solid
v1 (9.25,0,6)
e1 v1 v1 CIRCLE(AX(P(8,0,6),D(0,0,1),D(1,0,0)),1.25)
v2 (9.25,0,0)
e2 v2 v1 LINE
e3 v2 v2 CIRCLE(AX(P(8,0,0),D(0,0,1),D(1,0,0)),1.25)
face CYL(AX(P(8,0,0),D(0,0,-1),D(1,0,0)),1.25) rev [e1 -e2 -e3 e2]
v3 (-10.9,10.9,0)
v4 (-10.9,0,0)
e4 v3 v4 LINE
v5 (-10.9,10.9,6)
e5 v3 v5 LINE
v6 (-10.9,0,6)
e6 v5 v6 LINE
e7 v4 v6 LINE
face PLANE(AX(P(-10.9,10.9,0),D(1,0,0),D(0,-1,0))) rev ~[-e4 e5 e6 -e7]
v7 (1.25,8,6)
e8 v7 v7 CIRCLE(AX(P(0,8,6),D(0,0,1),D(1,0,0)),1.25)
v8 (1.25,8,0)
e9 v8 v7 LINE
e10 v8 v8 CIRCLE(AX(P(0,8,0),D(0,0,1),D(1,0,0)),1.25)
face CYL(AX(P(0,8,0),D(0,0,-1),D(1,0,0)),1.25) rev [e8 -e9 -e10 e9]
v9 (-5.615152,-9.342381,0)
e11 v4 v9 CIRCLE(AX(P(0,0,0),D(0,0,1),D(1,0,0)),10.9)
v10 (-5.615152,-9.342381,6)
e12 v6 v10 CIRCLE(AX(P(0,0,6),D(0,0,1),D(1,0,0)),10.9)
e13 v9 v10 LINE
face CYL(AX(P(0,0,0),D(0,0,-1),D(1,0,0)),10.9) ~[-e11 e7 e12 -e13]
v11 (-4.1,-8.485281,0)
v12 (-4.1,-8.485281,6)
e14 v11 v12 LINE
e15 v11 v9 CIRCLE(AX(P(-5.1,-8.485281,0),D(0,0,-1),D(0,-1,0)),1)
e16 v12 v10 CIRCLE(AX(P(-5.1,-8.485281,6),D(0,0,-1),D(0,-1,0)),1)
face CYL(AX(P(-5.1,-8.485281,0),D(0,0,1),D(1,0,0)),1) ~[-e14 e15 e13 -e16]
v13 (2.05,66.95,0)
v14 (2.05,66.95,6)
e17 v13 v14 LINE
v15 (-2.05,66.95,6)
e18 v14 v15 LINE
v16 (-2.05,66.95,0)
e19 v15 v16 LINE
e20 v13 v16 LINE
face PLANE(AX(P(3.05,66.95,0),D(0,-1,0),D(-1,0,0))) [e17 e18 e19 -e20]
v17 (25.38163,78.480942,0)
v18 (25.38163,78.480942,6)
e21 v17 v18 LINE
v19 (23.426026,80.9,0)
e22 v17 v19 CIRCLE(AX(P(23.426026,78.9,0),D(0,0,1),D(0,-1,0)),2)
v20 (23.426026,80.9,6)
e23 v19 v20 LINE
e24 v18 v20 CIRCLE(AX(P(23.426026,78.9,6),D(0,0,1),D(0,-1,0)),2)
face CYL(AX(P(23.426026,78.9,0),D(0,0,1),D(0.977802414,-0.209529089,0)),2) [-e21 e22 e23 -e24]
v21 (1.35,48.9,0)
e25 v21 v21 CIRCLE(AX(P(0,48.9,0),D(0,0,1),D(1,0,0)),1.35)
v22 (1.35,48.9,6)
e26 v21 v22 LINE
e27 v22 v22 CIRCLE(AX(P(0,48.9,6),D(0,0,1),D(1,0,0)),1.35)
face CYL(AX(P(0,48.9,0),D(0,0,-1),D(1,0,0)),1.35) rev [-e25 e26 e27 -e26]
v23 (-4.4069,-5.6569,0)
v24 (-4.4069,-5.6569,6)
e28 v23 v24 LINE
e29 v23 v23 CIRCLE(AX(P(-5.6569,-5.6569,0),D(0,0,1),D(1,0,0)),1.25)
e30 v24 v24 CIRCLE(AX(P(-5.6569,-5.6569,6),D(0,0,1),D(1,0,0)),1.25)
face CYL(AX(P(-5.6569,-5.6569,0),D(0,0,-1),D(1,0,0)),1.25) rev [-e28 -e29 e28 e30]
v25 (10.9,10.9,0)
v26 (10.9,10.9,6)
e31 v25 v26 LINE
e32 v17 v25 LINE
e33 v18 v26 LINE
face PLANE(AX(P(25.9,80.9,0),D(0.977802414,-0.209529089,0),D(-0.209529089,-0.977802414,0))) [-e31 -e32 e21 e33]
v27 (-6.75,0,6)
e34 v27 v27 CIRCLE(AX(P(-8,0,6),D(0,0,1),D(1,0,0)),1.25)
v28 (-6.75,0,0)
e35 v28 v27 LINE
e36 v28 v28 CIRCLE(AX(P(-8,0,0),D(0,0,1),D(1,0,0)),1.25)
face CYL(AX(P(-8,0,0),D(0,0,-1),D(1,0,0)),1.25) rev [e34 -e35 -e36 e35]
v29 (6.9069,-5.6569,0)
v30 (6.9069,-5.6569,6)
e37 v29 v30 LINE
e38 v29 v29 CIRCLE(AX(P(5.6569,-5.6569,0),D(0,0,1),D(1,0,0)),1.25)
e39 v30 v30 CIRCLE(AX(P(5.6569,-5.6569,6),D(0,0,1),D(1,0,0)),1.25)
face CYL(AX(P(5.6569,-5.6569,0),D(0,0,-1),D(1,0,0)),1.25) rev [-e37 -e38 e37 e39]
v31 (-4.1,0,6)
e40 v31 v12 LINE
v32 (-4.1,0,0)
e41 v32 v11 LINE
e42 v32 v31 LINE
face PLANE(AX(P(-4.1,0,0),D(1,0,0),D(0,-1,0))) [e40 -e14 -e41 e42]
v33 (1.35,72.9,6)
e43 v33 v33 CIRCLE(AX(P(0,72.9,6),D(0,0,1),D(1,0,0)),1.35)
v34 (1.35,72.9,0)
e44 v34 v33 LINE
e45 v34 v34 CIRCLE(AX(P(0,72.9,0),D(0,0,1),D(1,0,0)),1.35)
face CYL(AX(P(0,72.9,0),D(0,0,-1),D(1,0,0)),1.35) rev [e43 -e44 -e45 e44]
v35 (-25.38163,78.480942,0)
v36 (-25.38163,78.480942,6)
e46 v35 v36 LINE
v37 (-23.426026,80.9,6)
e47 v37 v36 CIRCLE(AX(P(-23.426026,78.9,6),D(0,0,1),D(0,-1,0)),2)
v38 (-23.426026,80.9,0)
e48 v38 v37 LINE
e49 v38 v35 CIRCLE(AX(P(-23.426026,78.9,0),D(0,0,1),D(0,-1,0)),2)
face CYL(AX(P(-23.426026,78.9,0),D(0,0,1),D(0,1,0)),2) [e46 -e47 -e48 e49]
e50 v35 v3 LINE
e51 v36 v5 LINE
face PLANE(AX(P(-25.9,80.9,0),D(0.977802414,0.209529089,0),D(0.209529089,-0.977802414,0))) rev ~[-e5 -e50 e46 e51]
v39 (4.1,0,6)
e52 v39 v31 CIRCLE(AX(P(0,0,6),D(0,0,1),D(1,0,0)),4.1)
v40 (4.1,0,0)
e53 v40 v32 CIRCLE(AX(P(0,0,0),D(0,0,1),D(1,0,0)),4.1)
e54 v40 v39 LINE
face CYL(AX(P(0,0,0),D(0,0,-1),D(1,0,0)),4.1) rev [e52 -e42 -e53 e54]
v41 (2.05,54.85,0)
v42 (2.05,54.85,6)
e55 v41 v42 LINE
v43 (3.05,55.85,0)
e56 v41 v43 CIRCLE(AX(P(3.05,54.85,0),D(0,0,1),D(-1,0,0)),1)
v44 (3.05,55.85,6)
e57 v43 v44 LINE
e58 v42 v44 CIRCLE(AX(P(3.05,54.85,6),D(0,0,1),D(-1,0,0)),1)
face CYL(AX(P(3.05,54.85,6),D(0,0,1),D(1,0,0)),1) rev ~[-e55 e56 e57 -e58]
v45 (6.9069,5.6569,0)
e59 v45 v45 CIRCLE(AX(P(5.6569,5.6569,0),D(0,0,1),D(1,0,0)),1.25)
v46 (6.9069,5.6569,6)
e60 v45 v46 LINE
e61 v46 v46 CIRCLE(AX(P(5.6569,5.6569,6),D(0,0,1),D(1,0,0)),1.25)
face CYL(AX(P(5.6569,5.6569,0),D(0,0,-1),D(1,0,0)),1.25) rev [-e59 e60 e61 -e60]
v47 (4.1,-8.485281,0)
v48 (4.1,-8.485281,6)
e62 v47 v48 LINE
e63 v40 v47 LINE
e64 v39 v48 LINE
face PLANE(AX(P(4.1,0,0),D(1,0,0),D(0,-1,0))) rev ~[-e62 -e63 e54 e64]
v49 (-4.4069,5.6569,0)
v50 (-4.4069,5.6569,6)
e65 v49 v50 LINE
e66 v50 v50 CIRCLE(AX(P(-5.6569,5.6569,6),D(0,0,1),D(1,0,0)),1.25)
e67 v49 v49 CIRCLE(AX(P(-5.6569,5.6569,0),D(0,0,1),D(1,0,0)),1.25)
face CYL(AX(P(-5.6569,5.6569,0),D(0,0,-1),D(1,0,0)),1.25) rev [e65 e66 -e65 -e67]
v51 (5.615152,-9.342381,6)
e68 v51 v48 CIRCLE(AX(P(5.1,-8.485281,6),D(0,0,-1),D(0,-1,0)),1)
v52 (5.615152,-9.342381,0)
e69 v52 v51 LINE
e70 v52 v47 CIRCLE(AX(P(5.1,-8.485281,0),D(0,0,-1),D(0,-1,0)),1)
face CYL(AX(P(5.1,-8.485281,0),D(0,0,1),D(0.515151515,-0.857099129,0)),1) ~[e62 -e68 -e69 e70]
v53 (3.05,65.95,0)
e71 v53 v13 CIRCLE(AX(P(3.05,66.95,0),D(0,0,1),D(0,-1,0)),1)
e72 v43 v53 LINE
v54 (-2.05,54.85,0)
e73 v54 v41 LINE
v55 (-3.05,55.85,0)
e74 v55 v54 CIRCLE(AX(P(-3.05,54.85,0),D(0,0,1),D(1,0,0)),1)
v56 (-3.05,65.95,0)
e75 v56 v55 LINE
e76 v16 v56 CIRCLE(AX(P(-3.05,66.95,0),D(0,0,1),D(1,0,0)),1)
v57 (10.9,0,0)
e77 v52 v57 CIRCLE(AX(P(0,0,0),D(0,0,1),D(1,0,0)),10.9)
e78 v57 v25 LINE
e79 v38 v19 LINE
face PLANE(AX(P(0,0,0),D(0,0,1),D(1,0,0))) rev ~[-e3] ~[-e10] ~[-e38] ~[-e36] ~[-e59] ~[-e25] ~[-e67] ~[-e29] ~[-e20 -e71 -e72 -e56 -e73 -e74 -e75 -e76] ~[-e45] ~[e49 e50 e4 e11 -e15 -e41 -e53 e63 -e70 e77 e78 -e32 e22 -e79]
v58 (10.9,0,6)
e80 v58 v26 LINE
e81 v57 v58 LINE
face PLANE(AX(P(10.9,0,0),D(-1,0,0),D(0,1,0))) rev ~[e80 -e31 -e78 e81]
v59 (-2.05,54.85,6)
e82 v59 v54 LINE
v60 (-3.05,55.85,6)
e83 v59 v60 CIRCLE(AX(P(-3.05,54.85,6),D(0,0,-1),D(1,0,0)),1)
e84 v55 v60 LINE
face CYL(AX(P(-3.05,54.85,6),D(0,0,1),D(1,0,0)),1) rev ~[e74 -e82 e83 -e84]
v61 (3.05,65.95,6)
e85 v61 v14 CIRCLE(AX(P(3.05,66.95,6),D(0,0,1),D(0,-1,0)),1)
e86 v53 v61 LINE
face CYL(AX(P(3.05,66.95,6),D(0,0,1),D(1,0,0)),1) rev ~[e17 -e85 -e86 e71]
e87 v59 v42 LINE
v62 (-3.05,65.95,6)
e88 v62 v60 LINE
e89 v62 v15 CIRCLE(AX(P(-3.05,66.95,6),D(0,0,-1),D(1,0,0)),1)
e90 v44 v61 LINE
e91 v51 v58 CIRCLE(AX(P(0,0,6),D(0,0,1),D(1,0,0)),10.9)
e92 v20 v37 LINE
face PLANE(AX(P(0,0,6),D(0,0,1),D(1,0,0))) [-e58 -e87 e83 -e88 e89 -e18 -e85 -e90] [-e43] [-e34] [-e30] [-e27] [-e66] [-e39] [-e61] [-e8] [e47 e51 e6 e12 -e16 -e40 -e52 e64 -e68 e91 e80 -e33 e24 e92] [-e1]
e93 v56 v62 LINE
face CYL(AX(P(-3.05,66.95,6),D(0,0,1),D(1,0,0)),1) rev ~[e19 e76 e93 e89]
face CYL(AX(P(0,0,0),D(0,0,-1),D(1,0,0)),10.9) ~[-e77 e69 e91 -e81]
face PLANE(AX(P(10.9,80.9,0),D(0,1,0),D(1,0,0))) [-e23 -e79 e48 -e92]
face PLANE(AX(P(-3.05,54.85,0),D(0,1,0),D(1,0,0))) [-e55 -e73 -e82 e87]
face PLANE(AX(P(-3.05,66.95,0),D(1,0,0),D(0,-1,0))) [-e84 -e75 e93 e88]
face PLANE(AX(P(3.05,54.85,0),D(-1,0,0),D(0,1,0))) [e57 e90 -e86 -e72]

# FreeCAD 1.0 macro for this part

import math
import FreeCAD as App
import Part
import Sketcher

V = App.Vector


def edges_at(feature, points):
    """Names of the edges that pass closest to the given points."""
    edges = feature.Shape.Edges
    near = lambda p: min(range(len(edges)), key=lambda i: edges[i].distToShape(Part.Vertex(*p))[0])
    return sorted({f"Edge{near(p) + 1}" for p in points})


def add_polygon(sketch, points):
    """Adds a closed chain of lines whose ends are joined by coincident constraints."""
    first, n = sketch.GeometryCount, len(points)
    for a, b in zip(points, points[1:] + points[:1]):
        sketch.addGeometry(Part.LineSegment(App.Vector(*a, 0), App.Vector(*b, 0)), False)
    for i in range(n):
        sketch.addConstraint(Sketcher.Constraint("Coincident", first + i, 2, first + (i + 1) % n, 1))

doc = App.newDocument("Part")
body = doc.addObject("PartDesign::Body", "Body")

# Sketch on XY plane
sketch1 = body.newObject("Sketcher::SketchObject", "Sketch")
sketch1.AttachmentSupport = (doc.getObject("XY_Plane"), [""])
sketch1.MapMode = "FlatFace"
sketch1.addGeometry(Part.ArcOfCircle(Part.Circle(V(0, 0, 0), V(0, 0, 1), 10.9), math.radians(-68), math.radians(0)), False)  # 0
sketch1.addGeometry(Part.LineSegment(V(10.9, 0, 0), V(10.9, 10.9, 0)), False)  # 1
sketch1.addGeometry(Part.LineSegment(V(10.9, 10.9, 0), V(25.9, 80.9, 0)), False)  # 2
sketch1.addGeometry(Part.LineSegment(V(25.9, 80.9, 0), V(-25.9, 80.9, 0)), False)  # 3
sketch1.addGeometry(Part.LineSegment(V(-25.9, 80.9, 0), V(-10.9, 10.9, 0)), False)  # 4
sketch1.addGeometry(Part.LineSegment(V(-10.9, 10.9, 0), V(-10.9, 0, 0)), False)  # 5
sketch1.addGeometry(Part.ArcOfCircle(Part.Circle(V(0, 0, 0), V(0, 0, 1), 10.9), math.radians(180), math.radians(248)), False)  # 6
sketch1.addGeometry(Part.LineSegment(V(-4.1, -10.1, 0), V(-4.1, 0, 0)), False)  # 7
sketch1.addGeometry(Part.ArcOfCircle(Part.Circle(V(0, 0, 0), V(0, 0, 1), 4.1), math.radians(0), math.radians(180)), False)  # 8
sketch1.addGeometry(Part.LineSegment(V(4.1, 0, 0), V(4.1, -10.1, 0)), False)  # 9
sketch1.addGeometry(Part.Circle(V(-8, 0, 0), V(0, 0, 1), 1.2), False)  # 10
sketch1.addGeometry(Part.Circle(V(-5.7, -5.7, 0), V(0, 0, 1), 1.2), False)  # 11
sketch1.addGeometry(Part.Circle(V(-5.7, 5.7, 0), V(0, 0, 1), 1.2), False)  # 12
sketch1.addGeometry(Part.Circle(V(0, 8, 0), V(0, 0, 1), 1.2), False)  # 13
sketch1.addGeometry(Part.Circle(V(5.7, -5.7, 0), V(0, 0, 1), 1.2), False)  # 14
sketch1.addGeometry(Part.Circle(V(8, 0, 0), V(0, 0, 1), 1.2), False)  # 15
sketch1.addGeometry(Part.Circle(V(5.7, 5.7, 0), V(0, 0, 1), 1.2), False)  # 16
sketch1.addGeometry(Part.Circle(V(0, 72.9, 0), V(0, 0, 1), 1.4), False)  # 17
add_polygon(sketch1, [(-3, 54.9), (-3, 67), (3, 67), (3, 54.9)])  # lines 18-21
sketch1.addGeometry(Part.Circle(V(0, 48.9, 0), V(0, 0, 1), 1.4), False)  # 22
sketch1.addConstraint([
    Sketcher.Constraint("Tangent", 0, 2, 1, 1),
    Sketcher.Constraint("Coincident", 1, 2, 2, 1),
    Sketcher.Constraint("Coincident", 2, 2, 3, 1),
    Sketcher.Constraint("Coincident", 3, 2, 4, 1),
    Sketcher.Constraint("Coincident", 4, 2, 5, 1),
    Sketcher.Constraint("Tangent", 5, 2, 6, 1),
    Sketcher.Constraint("Coincident", 6, 2, 7, 1),
    Sketcher.Constraint("Tangent", 7, 2, 8, 2),
    Sketcher.Constraint("Tangent", 8, 1, 9, 1),
    Sketcher.Constraint("Coincident", 9, 2, 0, 1),
    Sketcher.Constraint("Vertical", 1),
    Sketcher.Constraint("Horizontal", 3),
    Sketcher.Constraint("Vertical", 5),
    Sketcher.Constraint("Vertical", 7),
    Sketcher.Constraint("Vertical", 9),
    Sketcher.Constraint("Vertical", 18),
    Sketcher.Constraint("Horizontal", 19),
    Sketcher.Constraint("Vertical", 20),
    Sketcher.Constraint("Horizontal", 21),
    Sketcher.Constraint("Coincident", 0, 3, -1, 1),
    Sketcher.Constraint("Coincident", 6, 3, -1, 1),
    Sketcher.Constraint("Coincident", 8, 3, -1, 1),
    Sketcher.Constraint("Equal", 0, 6),
    Sketcher.Constraint("Equal", 10, 11),
    Sketcher.Constraint("Equal", 11, 12),
    Sketcher.Constraint("Equal", 12, 13),
    Sketcher.Constraint("Equal", 13, 14),
    Sketcher.Constraint("Equal", 14, 15),
    Sketcher.Constraint("Equal", 15, 16),
    Sketcher.Constraint("Equal", 17, 22),
    Sketcher.Constraint("Symmetric", 12, 3, 14, 3, -1, 1),
    Sketcher.Constraint("Symmetric", 10, 3, 15, 3, -1, 1),
    Sketcher.Constraint("Symmetric", 11, 3, 16, 3, -1, 1),
    Sketcher.Constraint("Symmetric", 11, 3, 14, 3, -2),
    Sketcher.Constraint("PointOnObject", 10, 3, -1),
    Sketcher.Constraint("PointOnObject", 13, 3, -2),
    Sketcher.Constraint("PointOnObject", 17, 3, -2),
    Sketcher.Constraint("PointOnObject", 22, 3, -2),
    Sketcher.Constraint("Horizontal", 1, 2, 4, 2),
    Sketcher.Constraint("Equal", 2, 4),
    Sketcher.Constraint("Diameter", 10, 2.5),
    Sketcher.Constraint("Diameter", 17, 2.7),
    Sketcher.Constraint("DistanceX", 19, 1, 19, 2, 6.1),
    Sketcher.Constraint("DistanceY", 18, 1, 18, 2, 12.1),
    Sketcher.Constraint("Radius", 0, 10.9),
    Sketcher.Constraint("Radius", 8, 4.1),
    Sketcher.Constraint("DistanceX", 3, 2, 3, 1, 51.8),
    Sketcher.Constraint("DistanceY", 1, 1, 1, 2, 10.9),
    Sketcher.Constraint("DistanceX", 10, 3, -1, 1, 8.0),
    Sketcher.Constraint("DistanceY", -1, 1, 13, 3, 8.0),
    Sketcher.Constraint("DistanceY", 22, 3, 17, 3, 24.0),
    Sketcher.Constraint("DistanceY", 17, 3, 2, 2, 8.0),
    Sketcher.Constraint("DistanceY", 1, 2, 2, 2, 70.0),
    Sketcher.Constraint("DistanceX", 18, 2, -1, 1, 3.05),
    Sketcher.Constraint("DistanceY", -1, 1, 18, 2, 66.95),
    Sketcher.Constraint("DistanceX", 11, 3, -1, 1, 5.657),
    Sketcher.Constraint("DistanceY", 11, 3, -1, 1, 5.657),
])
pad1 = body.newObject("PartDesign::Pad", "Pad")
pad1.Profile = sketch1
pad1.Length = 6
doc.recompute()

fillet = body.newObject("PartDesign::Fillet", "Fillet")
fillet.Base = (pad1, edges_at(pad1, [(4.1, -10.1, 3), (-4.1, -10.1, 3)]))
fillet.Radius = 1
doc.recompute()

fillet2 = body.newObject("PartDesign::Fillet", "Fillet001")
fillet2.Base = (fillet, edges_at(fillet, [(25.9, 80.9, 3), (-25.9, 80.9, 3)]))
fillet2.Radius = 2

# Sketch on XY plane
sketch2 = body.newObject("Sketcher::SketchObject", "Sketch001")
sketch2.AttachmentSupport = (doc.getObject("XY_Plane"), [""])
sketch2.MapMode = "FlatFace"
sketch2.AttachmentOffset = App.Placement(V(0, 0, 6), App.Rotation())
sketch2.addGeometry([
    Part.Circle(V(3, 67, 0), V(0, 0, 1), 1),
    Part.Circle(V(3, 54.9, 0), V(0, 0, 1), 1),
    Part.Circle(V(-3, 67, 0), V(0, 0, 1), 1),
    Part.Circle(V(-3, 54.9, 0), V(0, 0, 1), 1),
], False)
sketch2.addConstraint([
    Sketcher.Constraint("Equal", 0, 1),
    Sketcher.Constraint("Equal", 1, 2),
    Sketcher.Constraint("Equal", 2, 3),
    Sketcher.Constraint("Symmetric", 0, 3, 2, 3, -2),
    Sketcher.Constraint("Symmetric", 1, 3, 3, 3, -2),
    Sketcher.Constraint("Vertical", 0, 3, 1, 3),
    Sketcher.Constraint("Diameter", 0, 2.0),
    Sketcher.Constraint("DistanceY", 1, 3, 0, 3, 12.1),
    Sketcher.Constraint("DistanceX", 2, 3, 0, 3, 6.1),
    Sketcher.Constraint("DistanceY", -1, 1, 0, 3, 66.95),
])
pocket1 = body.newObject("PartDesign::Pocket", "Pocket")
pocket1.Profile = sketch2
pocket1.Length = 10

doc.recompute()
